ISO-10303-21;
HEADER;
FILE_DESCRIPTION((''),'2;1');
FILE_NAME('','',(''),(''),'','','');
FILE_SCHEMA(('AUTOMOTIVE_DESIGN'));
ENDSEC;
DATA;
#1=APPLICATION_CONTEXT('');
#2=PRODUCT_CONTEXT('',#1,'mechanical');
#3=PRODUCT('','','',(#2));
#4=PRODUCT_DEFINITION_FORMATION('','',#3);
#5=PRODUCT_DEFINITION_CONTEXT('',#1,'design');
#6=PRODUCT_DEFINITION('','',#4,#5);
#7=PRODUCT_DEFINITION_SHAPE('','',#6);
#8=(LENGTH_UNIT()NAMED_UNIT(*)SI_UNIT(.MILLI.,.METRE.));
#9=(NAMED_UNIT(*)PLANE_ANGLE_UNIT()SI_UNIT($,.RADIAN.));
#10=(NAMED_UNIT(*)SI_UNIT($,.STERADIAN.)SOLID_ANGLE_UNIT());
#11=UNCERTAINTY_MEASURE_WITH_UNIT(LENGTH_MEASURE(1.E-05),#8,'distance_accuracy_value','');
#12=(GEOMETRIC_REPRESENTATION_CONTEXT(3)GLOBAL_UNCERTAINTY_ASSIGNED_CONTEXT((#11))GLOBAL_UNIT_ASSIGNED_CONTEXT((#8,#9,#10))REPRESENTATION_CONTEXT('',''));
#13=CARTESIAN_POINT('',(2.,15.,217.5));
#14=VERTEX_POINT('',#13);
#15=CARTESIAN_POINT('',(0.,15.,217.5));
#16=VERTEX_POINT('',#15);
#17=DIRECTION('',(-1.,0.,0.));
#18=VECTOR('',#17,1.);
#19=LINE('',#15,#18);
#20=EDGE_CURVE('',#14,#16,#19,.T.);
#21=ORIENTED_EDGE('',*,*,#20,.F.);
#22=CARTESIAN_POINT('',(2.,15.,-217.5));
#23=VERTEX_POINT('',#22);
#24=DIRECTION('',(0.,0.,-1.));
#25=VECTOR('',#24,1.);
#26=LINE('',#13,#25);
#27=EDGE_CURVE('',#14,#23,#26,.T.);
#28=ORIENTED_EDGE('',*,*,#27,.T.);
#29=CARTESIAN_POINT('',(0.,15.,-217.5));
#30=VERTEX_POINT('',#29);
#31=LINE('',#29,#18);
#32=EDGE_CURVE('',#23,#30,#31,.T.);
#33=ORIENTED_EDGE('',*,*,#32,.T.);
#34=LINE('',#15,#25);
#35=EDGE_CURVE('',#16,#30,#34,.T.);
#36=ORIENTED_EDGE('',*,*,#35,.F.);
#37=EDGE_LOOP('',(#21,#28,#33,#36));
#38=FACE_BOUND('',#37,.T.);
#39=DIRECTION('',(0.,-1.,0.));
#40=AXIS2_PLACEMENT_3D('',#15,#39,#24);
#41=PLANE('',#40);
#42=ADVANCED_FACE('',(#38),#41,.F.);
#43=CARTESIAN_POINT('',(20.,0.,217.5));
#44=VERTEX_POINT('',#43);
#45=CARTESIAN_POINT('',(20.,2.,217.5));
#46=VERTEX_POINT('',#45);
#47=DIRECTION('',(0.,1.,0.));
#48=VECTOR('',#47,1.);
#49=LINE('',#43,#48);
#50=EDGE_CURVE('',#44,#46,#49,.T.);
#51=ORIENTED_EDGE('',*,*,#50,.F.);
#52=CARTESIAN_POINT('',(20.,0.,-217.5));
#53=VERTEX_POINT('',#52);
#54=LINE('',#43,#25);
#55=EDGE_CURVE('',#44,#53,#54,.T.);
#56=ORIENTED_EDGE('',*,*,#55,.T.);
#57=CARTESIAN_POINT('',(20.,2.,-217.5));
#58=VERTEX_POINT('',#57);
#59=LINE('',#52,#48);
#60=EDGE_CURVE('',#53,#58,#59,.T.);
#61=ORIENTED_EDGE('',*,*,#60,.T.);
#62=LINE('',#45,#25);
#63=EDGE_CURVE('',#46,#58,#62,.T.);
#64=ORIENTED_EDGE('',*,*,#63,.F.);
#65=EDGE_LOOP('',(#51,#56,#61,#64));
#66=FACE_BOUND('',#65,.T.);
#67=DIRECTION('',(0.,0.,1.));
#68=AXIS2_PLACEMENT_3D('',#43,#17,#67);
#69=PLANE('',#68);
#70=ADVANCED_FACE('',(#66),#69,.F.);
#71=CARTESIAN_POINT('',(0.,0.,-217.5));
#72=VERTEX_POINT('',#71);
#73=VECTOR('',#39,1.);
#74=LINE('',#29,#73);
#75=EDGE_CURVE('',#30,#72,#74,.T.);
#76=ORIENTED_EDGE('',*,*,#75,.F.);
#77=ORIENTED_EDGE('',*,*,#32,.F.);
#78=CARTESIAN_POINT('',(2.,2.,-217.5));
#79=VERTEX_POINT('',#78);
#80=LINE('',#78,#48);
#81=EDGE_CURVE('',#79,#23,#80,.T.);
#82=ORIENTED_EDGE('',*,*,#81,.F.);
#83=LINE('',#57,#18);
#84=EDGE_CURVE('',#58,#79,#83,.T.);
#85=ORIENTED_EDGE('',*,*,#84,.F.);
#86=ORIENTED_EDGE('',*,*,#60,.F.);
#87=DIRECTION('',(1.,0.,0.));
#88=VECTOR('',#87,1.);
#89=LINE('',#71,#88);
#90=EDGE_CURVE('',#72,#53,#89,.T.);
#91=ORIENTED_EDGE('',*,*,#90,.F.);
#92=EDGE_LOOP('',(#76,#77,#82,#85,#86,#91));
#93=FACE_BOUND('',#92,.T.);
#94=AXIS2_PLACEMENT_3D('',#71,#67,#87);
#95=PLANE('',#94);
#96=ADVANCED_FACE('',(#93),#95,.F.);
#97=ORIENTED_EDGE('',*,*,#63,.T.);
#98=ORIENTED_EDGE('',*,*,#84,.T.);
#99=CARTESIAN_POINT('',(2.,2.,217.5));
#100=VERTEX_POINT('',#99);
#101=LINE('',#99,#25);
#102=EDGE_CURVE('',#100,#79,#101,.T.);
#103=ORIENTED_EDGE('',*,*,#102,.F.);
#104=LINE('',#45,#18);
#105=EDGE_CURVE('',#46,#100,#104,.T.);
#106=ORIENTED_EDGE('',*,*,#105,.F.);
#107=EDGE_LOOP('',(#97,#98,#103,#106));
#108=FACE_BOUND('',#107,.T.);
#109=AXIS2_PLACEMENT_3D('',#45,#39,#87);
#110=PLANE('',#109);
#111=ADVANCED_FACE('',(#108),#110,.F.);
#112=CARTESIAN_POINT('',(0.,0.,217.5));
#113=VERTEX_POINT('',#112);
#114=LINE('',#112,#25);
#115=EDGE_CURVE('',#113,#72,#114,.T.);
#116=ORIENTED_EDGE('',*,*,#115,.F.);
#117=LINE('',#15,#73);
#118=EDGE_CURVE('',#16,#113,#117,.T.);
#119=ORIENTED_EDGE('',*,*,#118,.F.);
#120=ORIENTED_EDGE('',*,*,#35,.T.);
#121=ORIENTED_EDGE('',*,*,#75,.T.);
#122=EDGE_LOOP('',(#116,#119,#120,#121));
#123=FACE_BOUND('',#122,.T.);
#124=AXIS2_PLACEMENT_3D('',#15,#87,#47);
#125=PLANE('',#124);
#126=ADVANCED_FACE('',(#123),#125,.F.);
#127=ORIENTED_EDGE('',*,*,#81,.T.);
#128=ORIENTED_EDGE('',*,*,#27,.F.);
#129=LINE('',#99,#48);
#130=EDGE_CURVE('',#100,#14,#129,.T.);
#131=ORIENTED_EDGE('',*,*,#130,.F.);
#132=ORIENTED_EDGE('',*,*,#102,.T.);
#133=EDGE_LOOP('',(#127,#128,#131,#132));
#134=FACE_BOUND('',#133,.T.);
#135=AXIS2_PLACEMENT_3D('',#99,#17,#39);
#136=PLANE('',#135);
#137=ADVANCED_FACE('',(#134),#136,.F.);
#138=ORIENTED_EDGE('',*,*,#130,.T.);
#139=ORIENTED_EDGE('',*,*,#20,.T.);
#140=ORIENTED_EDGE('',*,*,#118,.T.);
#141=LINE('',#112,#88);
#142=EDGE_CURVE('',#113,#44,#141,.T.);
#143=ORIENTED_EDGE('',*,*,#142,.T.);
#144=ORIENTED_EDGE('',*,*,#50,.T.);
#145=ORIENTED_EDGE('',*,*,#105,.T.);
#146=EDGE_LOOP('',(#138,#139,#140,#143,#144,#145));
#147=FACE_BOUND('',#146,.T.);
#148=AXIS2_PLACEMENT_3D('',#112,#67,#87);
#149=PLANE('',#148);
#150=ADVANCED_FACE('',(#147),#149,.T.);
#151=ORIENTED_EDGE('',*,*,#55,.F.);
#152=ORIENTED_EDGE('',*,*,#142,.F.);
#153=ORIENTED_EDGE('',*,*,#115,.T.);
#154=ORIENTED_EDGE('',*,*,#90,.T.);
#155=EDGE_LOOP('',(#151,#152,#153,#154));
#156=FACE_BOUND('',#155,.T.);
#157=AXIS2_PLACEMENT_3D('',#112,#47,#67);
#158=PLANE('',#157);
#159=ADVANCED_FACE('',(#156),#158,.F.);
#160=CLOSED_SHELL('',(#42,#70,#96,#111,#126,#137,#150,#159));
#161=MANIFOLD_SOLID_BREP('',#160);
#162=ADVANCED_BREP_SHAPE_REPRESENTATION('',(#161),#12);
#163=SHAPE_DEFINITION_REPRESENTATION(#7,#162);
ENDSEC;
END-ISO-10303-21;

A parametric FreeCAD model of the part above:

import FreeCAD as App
import Part
import Sketcher


def add_polygon(sketch, points):
    """Adds a closed chain of lines whose ends are joined by coincident constraints."""
    first, n = sketch.GeometryCount, len(points)
    for a, b in zip(points, points[1:] + points[:1]):
        sketch.addGeometry(Part.LineSegment(App.Vector(*a, 0), App.Vector(*b, 0)), False)
    for i in range(n):
        sketch.addConstraint(Sketcher.Constraint("Coincident", first + i, 2, first + (i + 1) % n, 1))

doc = App.newDocument("Part")
body = doc.addObject("PartDesign::Body", "Body")

sketch1 = doc.addObject("Sketcher::SketchObject", "Sketch")
body.addObject(sketch1)
sketch1.AttachmentSupport = (doc.XY_Plane, [""])
sketch1.MapMode = "FlatFace"
add_polygon(sketch1, [(0, 15), (0, 0), (20, 0), (20, 2), (2, 2), (2, 15)])
sketch1.addConstraint([
    Sketcher.Constraint("Vertical", 0),
    Sketcher.Constraint("Horizontal", 1),
    Sketcher.Constraint("Vertical", 2),
    Sketcher.Constraint("Horizontal", 3),
    Sketcher.Constraint("Vertical", 4),
    Sketcher.Constraint("Horizontal", 5),
    Sketcher.Constraint("Coincident", 0, 2, -1, 1),
    Sketcher.Constraint("Equal", 5, 2),
    Sketcher.Constraint("DistanceX", 1, 1, 1, 2, 20.0),
    Sketcher.Constraint("DistanceX", 3, 2, 3, 1, 18.0),
    Sketcher.Constraint("DistanceY", 0, 2, 0, 1, 15.0),
])
pad1 = doc.addObject("PartDesign::Pad", "Pad")
body.addObject(pad1)
pad1.Profile = sketch1
pad1.Length = 435
pad1.Midplane = True

doc.recompute()
